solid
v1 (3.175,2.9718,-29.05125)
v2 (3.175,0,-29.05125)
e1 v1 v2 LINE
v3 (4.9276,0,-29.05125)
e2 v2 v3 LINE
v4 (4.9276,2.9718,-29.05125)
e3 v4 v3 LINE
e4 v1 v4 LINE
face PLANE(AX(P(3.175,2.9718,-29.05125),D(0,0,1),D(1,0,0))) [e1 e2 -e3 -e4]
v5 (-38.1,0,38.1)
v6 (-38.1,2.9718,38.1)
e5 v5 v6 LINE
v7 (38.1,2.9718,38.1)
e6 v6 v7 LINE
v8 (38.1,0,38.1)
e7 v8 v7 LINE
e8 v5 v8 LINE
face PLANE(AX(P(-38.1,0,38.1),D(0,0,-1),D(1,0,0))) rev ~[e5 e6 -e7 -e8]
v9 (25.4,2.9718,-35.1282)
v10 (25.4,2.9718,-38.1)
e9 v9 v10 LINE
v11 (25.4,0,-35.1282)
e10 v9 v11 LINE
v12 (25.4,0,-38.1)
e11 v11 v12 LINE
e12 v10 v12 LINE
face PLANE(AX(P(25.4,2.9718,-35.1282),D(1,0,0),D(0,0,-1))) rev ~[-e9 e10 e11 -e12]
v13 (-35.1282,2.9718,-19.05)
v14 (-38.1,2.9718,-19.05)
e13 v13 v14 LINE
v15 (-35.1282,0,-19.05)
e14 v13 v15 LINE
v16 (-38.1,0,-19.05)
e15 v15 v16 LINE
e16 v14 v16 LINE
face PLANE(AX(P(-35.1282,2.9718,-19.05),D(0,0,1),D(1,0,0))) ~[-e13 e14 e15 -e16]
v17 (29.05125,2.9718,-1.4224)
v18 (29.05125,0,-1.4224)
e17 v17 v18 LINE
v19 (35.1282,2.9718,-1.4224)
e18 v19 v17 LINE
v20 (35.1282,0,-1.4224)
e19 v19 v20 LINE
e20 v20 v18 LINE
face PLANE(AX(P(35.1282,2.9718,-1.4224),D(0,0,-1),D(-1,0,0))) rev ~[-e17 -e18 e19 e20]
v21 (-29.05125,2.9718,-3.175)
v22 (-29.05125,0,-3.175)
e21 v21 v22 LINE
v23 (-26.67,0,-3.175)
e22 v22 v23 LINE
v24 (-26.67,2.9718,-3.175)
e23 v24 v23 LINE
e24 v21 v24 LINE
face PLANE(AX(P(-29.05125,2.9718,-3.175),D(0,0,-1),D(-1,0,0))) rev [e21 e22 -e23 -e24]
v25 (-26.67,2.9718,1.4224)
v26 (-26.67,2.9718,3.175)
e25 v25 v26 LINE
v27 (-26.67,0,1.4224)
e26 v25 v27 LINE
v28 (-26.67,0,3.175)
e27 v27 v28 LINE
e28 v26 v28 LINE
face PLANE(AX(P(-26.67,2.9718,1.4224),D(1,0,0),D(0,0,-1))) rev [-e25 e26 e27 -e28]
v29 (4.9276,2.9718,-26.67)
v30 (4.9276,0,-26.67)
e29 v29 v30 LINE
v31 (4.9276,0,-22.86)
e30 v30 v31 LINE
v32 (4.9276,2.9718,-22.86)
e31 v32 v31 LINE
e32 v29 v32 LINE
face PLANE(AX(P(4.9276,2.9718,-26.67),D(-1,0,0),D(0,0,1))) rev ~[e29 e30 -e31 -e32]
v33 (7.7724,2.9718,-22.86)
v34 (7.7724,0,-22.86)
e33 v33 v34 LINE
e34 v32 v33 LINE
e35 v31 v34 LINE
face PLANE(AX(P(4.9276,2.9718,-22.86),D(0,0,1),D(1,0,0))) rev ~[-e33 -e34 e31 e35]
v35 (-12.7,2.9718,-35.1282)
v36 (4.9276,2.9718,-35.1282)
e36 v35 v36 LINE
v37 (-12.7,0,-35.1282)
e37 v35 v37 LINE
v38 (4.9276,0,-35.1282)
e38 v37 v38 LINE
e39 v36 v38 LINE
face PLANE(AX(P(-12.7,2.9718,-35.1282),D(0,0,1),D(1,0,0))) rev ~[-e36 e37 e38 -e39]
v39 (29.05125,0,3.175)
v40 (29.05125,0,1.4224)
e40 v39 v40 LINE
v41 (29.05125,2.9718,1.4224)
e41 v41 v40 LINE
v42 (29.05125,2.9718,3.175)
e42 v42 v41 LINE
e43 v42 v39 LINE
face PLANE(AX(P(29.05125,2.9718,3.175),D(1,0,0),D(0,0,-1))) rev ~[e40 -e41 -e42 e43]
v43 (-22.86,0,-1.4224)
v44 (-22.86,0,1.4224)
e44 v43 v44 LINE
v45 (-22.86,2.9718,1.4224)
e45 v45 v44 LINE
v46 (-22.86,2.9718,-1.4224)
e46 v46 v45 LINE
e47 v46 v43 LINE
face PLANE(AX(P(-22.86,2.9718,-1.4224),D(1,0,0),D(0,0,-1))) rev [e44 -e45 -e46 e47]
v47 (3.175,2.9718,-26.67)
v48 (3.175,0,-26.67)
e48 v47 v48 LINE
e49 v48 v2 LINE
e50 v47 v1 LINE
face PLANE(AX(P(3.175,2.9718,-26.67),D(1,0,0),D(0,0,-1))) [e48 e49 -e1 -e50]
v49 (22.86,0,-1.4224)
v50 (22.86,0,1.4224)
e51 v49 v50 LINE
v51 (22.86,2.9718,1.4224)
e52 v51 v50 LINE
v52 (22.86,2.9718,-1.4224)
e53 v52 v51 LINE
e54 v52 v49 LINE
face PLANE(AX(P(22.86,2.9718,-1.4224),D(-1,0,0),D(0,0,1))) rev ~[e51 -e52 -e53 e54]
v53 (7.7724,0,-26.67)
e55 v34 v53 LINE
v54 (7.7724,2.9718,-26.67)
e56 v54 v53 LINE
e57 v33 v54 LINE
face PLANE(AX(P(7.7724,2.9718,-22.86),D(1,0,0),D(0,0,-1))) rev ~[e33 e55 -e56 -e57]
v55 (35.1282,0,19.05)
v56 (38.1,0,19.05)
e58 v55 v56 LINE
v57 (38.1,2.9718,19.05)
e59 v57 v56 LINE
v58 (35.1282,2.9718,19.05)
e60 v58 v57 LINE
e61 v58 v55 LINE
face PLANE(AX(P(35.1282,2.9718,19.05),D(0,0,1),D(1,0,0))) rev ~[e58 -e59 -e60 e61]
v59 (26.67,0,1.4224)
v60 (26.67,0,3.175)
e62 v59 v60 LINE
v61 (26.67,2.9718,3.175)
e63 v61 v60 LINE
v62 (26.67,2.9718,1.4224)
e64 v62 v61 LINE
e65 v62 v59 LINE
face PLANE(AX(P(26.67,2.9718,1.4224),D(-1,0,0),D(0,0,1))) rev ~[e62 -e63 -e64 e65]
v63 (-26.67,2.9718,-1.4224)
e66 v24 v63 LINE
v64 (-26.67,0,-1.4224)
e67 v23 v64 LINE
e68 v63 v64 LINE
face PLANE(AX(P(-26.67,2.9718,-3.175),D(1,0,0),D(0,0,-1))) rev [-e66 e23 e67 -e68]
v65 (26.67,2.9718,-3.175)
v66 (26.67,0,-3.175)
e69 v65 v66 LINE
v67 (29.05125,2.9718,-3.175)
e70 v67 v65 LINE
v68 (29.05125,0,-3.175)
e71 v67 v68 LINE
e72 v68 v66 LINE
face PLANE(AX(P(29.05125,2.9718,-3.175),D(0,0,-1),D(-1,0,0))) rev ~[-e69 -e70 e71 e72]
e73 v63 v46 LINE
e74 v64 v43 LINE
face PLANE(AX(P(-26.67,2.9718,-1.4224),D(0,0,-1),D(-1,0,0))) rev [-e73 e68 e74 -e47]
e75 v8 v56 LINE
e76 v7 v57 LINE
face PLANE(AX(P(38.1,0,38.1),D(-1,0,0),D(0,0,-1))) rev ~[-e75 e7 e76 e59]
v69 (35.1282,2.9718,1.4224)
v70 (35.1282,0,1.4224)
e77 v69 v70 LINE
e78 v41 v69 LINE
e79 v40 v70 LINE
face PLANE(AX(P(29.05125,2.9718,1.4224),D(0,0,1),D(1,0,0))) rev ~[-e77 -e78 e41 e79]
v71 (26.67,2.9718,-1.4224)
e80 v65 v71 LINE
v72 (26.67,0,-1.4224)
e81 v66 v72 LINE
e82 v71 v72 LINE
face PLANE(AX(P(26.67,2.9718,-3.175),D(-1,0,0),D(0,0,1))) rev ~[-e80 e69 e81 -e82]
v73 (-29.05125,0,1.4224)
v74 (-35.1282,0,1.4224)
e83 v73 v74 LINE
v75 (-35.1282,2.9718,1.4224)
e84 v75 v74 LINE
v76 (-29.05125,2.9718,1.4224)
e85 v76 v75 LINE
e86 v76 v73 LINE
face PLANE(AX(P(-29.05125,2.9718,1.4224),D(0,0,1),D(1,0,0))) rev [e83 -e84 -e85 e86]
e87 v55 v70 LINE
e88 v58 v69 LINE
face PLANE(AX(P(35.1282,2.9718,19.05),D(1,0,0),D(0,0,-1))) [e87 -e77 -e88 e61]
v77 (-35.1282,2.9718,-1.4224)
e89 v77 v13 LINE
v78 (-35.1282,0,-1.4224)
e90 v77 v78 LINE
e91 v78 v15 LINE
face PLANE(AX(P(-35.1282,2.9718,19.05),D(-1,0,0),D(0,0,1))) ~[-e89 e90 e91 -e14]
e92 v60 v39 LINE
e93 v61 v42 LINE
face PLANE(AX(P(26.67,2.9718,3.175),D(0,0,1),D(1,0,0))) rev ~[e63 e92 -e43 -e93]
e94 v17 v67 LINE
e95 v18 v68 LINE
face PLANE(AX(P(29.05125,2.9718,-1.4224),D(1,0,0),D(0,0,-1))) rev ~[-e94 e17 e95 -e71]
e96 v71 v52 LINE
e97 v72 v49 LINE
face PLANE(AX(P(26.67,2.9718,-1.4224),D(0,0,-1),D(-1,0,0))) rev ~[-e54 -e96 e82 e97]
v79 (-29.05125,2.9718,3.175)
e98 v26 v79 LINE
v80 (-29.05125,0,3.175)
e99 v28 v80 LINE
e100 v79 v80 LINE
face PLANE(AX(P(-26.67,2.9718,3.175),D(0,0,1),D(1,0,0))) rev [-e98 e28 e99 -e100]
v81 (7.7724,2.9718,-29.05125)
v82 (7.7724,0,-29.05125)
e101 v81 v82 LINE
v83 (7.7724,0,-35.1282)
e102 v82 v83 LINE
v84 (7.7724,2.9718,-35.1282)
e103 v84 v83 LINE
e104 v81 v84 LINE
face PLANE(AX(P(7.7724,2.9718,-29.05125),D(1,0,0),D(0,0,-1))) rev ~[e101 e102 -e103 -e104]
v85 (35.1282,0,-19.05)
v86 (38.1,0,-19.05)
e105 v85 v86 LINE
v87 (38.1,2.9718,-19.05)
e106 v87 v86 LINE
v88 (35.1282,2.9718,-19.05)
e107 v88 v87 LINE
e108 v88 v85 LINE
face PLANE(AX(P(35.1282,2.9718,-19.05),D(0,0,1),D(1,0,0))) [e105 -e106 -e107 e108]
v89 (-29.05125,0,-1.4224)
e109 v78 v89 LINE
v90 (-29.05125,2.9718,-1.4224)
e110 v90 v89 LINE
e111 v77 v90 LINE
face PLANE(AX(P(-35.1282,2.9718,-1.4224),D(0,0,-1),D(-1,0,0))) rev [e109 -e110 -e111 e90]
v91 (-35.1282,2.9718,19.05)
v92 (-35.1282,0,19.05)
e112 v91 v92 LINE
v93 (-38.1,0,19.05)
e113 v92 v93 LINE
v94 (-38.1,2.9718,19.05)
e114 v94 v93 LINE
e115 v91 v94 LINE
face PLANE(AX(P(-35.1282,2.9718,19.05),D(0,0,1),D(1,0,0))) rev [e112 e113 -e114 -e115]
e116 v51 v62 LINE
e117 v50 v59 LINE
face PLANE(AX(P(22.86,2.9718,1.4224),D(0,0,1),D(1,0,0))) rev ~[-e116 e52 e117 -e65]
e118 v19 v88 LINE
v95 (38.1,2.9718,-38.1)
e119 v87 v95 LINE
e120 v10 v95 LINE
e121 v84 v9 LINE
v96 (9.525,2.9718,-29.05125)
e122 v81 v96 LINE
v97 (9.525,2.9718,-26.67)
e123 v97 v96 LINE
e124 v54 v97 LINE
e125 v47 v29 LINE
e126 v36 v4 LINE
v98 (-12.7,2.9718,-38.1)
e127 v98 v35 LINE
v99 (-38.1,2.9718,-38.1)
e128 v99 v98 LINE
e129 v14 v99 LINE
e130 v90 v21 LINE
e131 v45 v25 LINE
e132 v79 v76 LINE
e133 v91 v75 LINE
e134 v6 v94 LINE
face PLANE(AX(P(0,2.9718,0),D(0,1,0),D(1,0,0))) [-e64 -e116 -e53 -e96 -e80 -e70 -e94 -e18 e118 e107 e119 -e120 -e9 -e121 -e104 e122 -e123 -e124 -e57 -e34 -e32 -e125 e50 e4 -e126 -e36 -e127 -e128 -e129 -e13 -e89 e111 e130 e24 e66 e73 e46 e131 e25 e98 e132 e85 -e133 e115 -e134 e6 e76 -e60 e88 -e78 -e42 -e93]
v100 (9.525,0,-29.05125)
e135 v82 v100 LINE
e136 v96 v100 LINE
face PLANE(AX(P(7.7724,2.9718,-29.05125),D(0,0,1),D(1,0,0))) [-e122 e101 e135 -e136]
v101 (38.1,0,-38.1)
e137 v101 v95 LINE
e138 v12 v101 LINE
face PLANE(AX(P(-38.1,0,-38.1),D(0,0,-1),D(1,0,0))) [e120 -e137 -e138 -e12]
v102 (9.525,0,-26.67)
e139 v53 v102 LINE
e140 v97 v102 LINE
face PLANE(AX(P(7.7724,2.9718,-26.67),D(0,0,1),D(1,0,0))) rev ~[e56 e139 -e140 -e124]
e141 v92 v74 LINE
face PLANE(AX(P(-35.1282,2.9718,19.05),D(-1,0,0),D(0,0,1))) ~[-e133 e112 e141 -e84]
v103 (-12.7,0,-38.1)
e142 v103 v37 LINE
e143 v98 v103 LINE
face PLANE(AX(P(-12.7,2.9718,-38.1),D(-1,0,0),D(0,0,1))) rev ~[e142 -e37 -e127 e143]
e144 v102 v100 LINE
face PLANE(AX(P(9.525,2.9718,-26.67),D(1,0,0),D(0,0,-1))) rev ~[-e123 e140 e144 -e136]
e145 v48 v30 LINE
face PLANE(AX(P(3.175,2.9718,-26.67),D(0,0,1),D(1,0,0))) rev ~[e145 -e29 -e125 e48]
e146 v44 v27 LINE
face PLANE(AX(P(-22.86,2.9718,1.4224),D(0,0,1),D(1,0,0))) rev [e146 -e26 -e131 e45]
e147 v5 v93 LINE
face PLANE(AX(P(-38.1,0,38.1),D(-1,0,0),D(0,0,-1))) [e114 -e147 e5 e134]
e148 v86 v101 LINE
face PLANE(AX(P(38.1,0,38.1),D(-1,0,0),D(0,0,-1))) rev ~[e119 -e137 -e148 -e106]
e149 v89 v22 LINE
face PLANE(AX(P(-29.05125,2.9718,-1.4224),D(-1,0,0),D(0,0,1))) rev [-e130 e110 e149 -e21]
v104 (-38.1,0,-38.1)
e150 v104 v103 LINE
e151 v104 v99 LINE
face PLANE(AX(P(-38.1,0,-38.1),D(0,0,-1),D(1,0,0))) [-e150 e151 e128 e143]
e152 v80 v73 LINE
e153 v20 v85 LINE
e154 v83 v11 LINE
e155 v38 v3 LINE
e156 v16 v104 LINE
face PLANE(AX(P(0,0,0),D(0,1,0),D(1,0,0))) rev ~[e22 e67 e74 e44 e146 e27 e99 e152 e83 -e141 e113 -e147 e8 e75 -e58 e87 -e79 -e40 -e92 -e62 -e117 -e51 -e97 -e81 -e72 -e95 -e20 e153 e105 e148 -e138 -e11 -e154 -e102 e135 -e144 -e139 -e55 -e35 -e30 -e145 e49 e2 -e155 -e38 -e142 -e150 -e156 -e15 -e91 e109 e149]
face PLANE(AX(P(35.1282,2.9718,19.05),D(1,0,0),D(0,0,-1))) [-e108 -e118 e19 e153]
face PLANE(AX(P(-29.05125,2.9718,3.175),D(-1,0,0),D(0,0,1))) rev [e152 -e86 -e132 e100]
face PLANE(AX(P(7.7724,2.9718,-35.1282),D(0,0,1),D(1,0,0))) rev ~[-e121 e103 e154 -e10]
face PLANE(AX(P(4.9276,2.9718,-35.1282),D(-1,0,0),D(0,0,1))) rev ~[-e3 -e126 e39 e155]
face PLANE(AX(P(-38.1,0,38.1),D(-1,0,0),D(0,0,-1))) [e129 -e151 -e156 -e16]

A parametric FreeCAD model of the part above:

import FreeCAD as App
import Part
import Sketcher
from FreeCAD import Vector
Q = App.Units.Quantity

doc = App.newDocument("Part")
body = doc.addObject("PartDesign::Body", "Body")

sketch1 = body.newObject("Sketcher::SketchObject", "Sketch")
sketch1.AttachmentSupport = (doc.getObject("XZ_Plane"), [""])
sketch1.MapMode = "FlatFace"
sketch1.addGeometry(Part.LineSegment(Vector(-38, -38, 0), Vector(-38, 38, 0)), False)
sketch1.addGeometry(Part.LineSegment(Vector(-38, 38, 0), Vector(38, 38, 0)), False)
sketch1.addGeometry(Part.LineSegment(Vector(38, 38, 0), Vector(38, -38, 0)), False)
sketch1.addGeometry(Part.LineSegment(Vector(38, -38, 0), Vector(-38, -38, 0)), False)
sketch1.addConstraint(Sketcher.Constraint("Coincident", 0, 2, 1, 1))
sketch1.addConstraint(Sketcher.Constraint("Coincident", 1, 2, 2, 1))
sketch1.addConstraint(Sketcher.Constraint("Coincident", 2, 2, 3, 1))
sketch1.addConstraint(Sketcher.Constraint("Coincident", 3, 2, 0, 1))
sketch1.addConstraint(Sketcher.Constraint("Vertical", 0))
sketch1.addConstraint(Sketcher.Constraint("Horizontal", 1))
sketch1.addConstraint(Sketcher.Constraint("Vertical", 2))
sketch1.addConstraint(Sketcher.Constraint("Horizontal", 3))
sketch1.addConstraint(Sketcher.Constraint("Symmetric", 0, 2, 2, 2, -1, 1))
sketch1.addConstraint(Sketcher.Constraint("Equal", 3, 0))
sketch1.addConstraint(Sketcher.Constraint("DistanceX", 1, 1, 1, 2, Q("3 in")))
pad1 = body.newObject("PartDesign::Pad", "Pad")
pad1.Profile = sketch1
pad1.Length = Q("0.117 in")
pad1.Reversed = True

sketch2 = body.newObject("Sketcher::SketchObject", "Sketch001")
sketch2.AttachmentSupport = (doc.getObject("XZ_Plane"), [""])
sketch2.MapMode = "FlatFace"
sketch2.AttachmentOffset = App.Placement(Vector(0, 0, -0.117 * 25.4), App.Rotation())
sketch2.addGeometry(Part.LineSegment(Vector(35.1, -19.1, 0), Vector(35.1, 19.1, 0)), False)
sketch2.addGeometry(Part.LineSegment(Vector(35.1, 19.1, 0), Vector(38.1, 19.1, 0)), False)
sketch2.addGeometry(Part.LineSegment(Vector(38.1, 19.1, 0), Vector(38.1, -19.1, 0)), False)
sketch2.addGeometry(Part.LineSegment(Vector(38.1, -19.1, 0), Vector(35.1, -19.1, 0)), False)
sketch2.addConstraint(Sketcher.Constraint("Coincident", 0, 2, 1, 1))
sketch2.addConstraint(Sketcher.Constraint("Coincident", 1, 2, 2, 1))
sketch2.addConstraint(Sketcher.Constraint("Coincident", 2, 2, 3, 1))
sketch2.addConstraint(Sketcher.Constraint("Coincident", 3, 2, 0, 1))
sketch2.addConstraint(Sketcher.Constraint("Vertical", 0))
sketch2.addConstraint(Sketcher.Constraint("Horizontal", 1))
sketch2.addConstraint(Sketcher.Constraint("Vertical", 2))
sketch2.addConstraint(Sketcher.Constraint("Horizontal", 3))
sketch2.addConstraint(Sketcher.Constraint("DistanceY", 0, 1, 0, 2, Q("1.5 in")))
sketch2.addConstraint(Sketcher.Constraint("DistanceX", -1, 1, 1, 2, Q("1.5 in")))
sketch2.addConstraint(Sketcher.Constraint("DistanceX", 1, 1, 1, 2, Q("0.117 in")))
sketch2.addConstraint(Sketcher.Constraint("DistanceY", -1, 1, 0, 2, Q("0.75 in")))
pocket1 = body.newObject("PartDesign::Pocket", "Pocket")
pocket1.Profile = sketch2
pocket1.Type = "ThroughAll"
pocket1.Reversed = True

sketch3 = body.newObject("Sketcher::SketchObject", "Sketch002")
sketch3.AttachmentSupport = (doc.getObject("XZ_Plane"), [""])
sketch3.MapMode = "FlatFace"
sketch3.AttachmentOffset = App.Placement(Vector(0, 0, -0.117 * 25.4), App.Rotation())
sketch3.addGeometry(Part.LineSegment(Vector(35.1, -1.4, 0), Vector(29.1, -1.4, 0)), False)
sketch3.addGeometry(Part.LineSegment(Vector(29.1, -1.4, 0), Vector(29.1, -3.2, 0)), False)
sketch3.addGeometry(Part.LineSegment(Vector(29.1, -3.2, 0), Vector(26.7, -3.2, 0)), False)
sketch3.addGeometry(Part.LineSegment(Vector(26.7, -3.2, 0), Vector(26.7, -1.4, 0)), False)
sketch3.addGeometry(Part.LineSegment(Vector(26.7, -1.4, 0), Vector(22.9, -1.4, 0)), False)
sketch3.addGeometry(Part.LineSegment(Vector(22.9, -1.4, 0), Vector(22.9, 1.4, 0)), False)
sketch3.addGeometry(Part.LineSegment(Vector(22.9, 1.4, 0), Vector(26.7, 1.4, 0)), False)
sketch3.addGeometry(Part.LineSegment(Vector(26.7, 1.4, 0), Vector(26.7, 3.2, 0)), False)
sketch3.addGeometry(Part.LineSegment(Vector(26.7, 3.2, 0), Vector(29.1, 3.2, 0)), False)
sketch3.addGeometry(Part.LineSegment(Vector(29.1, 3.2, 0), Vector(29.1, 1.4, 0)), False)
sketch3.addGeometry(Part.LineSegment(Vector(29.1, 1.4, 0), Vector(35.1, 1.4, 0)), False)
sketch3.addGeometry(Part.LineSegment(Vector(35.1, 1.4, 0), Vector(35.1, -1.4, 0)), False)
sketch3.addConstraint(Sketcher.Constraint("Coincident", 0, 2, 1, 1))
sketch3.addConstraint(Sketcher.Constraint("Coincident", 1, 2, 2, 1))
sketch3.addConstraint(Sketcher.Constraint("Coincident", 2, 2, 3, 1))
sketch3.addConstraint(Sketcher.Constraint("Coincident", 3, 2, 4, 1))
sketch3.addConstraint(Sketcher.Constraint("Coincident", 4, 2, 5, 1))
sketch3.addConstraint(Sketcher.Constraint("Coincident", 5, 2, 6, 1))
sketch3.addConstraint(Sketcher.Constraint("Coincident", 6, 2, 7, 1))
sketch3.addConstraint(Sketcher.Constraint("Coincident", 7, 2, 8, 1))
sketch3.addConstraint(Sketcher.Constraint("Coincident", 8, 2, 9, 1))
sketch3.addConstraint(Sketcher.Constraint("Coincident", 9, 2, 10, 1))
sketch3.addConstraint(Sketcher.Constraint("Coincident", 10, 2, 11, 1))
sketch3.addConstraint(Sketcher.Constraint("Coincident", 11, 2, 0, 1))
sketch3.addConstraint(Sketcher.Constraint("Horizontal", 0))
sketch3.addConstraint(Sketcher.Constraint("Vertical", 1))
sketch3.addConstraint(Sketcher.Constraint("Horizontal", 2))
sketch3.addConstraint(Sketcher.Constraint("Vertical", 3))
sketch3.addConstraint(Sketcher.Constraint("Horizontal", 4))
sketch3.addConstraint(Sketcher.Constraint("Vertical", 5))
sketch3.addConstraint(Sketcher.Constraint("Horizontal", 6))
sketch3.addConstraint(Sketcher.Constraint("Vertical", 7))
sketch3.addConstraint(Sketcher.Constraint("Horizontal", 8))
sketch3.addConstraint(Sketcher.Constraint("Vertical", 9))
sketch3.addConstraint(Sketcher.Constraint("Horizontal", 10))
sketch3.addConstraint(Sketcher.Constraint("Vertical", 11))
sketch3.addConstraint(Sketcher.Constraint("Symmetric", 3, 2, 6, 2, -1))
sketch3.addConstraint(Sketcher.Constraint("Symmetric", 1, 2, 8, 2, -1))
sketch3.addConstraint(Sketcher.Constraint("Horizontal", 0, 2, 3, 2))
sketch3.addConstraint(Sketcher.Constraint("Horizontal", 6, 2, 9, 2))
sketch3.addConstraint(Sketcher.Constraint("DistanceX", 4, 2, 4, 1, Q("0.15 in")))
sketch3.addConstraint(Sketcher.Constraint("DistanceX", -1, 1, 4, 2, Q("0.9 in")))
sketch3.addConstraint(Sketcher.Constraint("DistanceX", 2, 2, 2, 1, Q("0.09375 in")))
sketch3.addConstraint(Sketcher.Constraint("DistanceY", 1, 2, 1, 1, Q("0.069 in")))
sketch3.addConstraint(Sketcher.Constraint("DistanceY", 5, 1, 5, 2, Q("0.112 in")))
sketch3.addConstraint(Sketcher.Constraint("DistanceX", -1, 1, 10, 2, Q("1.383 in")))
pocket2 = body.newObject("PartDesign::Pocket", "Pocket001")
pocket2.Profile = sketch3
pocket2.Type = "ThroughAll"
pocket2.Reversed = True

sketch4 = body.newObject("Sketcher::SketchObject", "Sketch003")
sketch4.AttachmentSupport = (doc.getObject("XZ_Plane"), [""])
sketch4.MapMode = "FlatFace"
sketch4.AttachmentOffset = App.Placement(Vector(0, 0, -0.117 * 25.4), App.Rotation())
sketch4.addGeometry(Part.LineSegment(Vector(25.4, -38.1, 0), Vector(-12.7, -38.1, 0)), False)
sketch4.addGeometry(Part.LineSegment(Vector(-12.7, -38.1, 0), Vector(-12.7, -35.1, 0)), False)
sketch4.addGeometry(Part.LineSegment(Vector(-12.7, -35.1, 0), Vector(4.9, -35.1, 0)), False)
sketch4.addGeometry(Part.LineSegment(Vector(4.9, -35.1, 0), Vector(4.9, -29.1, 0)), False)
sketch4.addGeometry(Part.LineSegment(Vector(4.9, -29.1, 0), Vector(3.2, -29.1, 0)), False)
sketch4.addGeometry(Part.LineSegment(Vector(3.2, -29.1, 0), Vector(3.2, -26.7, 0)), False)
sketch4.addGeometry(Part.LineSegment(Vector(3.2, -26.7, 0), Vector(4.9, -26.7, 0)), False)
sketch4.addGeometry(Part.LineSegment(Vector(4.9, -26.7, 0), Vector(4.9, -22.9, 0)), False)
sketch4.addGeometry(Part.LineSegment(Vector(4.9, -22.9, 0), Vector(7.8, -22.9, 0)), False)
sketch4.addGeometry(Part.LineSegment(Vector(7.8, -22.9, 0), Vector(7.8, -26.7, 0)), False)
sketch4.addGeometry(Part.LineSegment(Vector(7.8, -26.7, 0), Vector(9.5, -26.7, 0)), False)
sketch4.addGeometry(Part.LineSegment(Vector(9.5, -26.7, 0), Vector(9.5, -29.1, 0)), False)
sketch4.addGeometry(Part.LineSegment(Vector(9.5, -29.1, 0), Vector(7.8, -29.1, 0)), False)
sketch4.addGeometry(Part.LineSegment(Vector(7.8, -29.1, 0), Vector(7.8, -35.1, 0)), False)
sketch4.addGeometry(Part.LineSegment(Vector(7.8, -35.1, 0), Vector(25.4, -35.1, 0)), False)
sketch4.addGeometry(Part.LineSegment(Vector(25.4, -35.1, 0), Vector(25.4, -38.1, 0)), False)
sketch4.addConstraint(Sketcher.Constraint("Coincident", 0, 2, 1, 1))
sketch4.addConstraint(Sketcher.Constraint("Coincident", 1, 2, 2, 1))
sketch4.addConstraint(Sketcher.Constraint("Coincident", 2, 2, 3, 1))
sketch4.addConstraint(Sketcher.Constraint("Coincident", 3, 2, 4, 1))
sketch4.addConstraint(Sketcher.Constraint("Coincident", 4, 2, 5, 1))
sketch4.addConstraint(Sketcher.Constraint("Coincident", 5, 2, 6, 1))
sketch4.addConstraint(Sketcher.Constraint("Coincident", 6, 2, 7, 1))
sketch4.addConstraint(Sketcher.Constraint("Coincident", 7, 2, 8, 1))
sketch4.addConstraint(Sketcher.Constraint("Coincident", 8, 2, 9, 1))
sketch4.addConstraint(Sketcher.Constraint("Coincident", 9, 2, 10, 1))
sketch4.addConstraint(Sketcher.Constraint("Coincident", 10, 2, 11, 1))
sketch4.addConstraint(Sketcher.Constraint("Coincident", 11, 2, 12, 1))
sketch4.addConstraint(Sketcher.Constraint("Coincident", 12, 2, 13, 1))
sketch4.addConstraint(Sketcher.Constraint("Coincident", 13, 2, 14, 1))
sketch4.addConstraint(Sketcher.Constraint("Coincident", 14, 2, 15, 1))
sketch4.addConstraint(Sketcher.Constraint("Coincident", 15, 2, 0, 1))
sketch4.addConstraint(Sketcher.Constraint("Horizontal", 0))
sketch4.addConstraint(Sketcher.Constraint("Vertical", 1))
sketch4.addConstraint(Sketcher.Constraint("Horizontal", 2))
sketch4.addConstraint(Sketcher.Constraint("Vertical", 3))
sketch4.addConstraint(Sketcher.Constraint("Horizontal", 4))
sketch4.addConstraint(Sketcher.Constraint("Vertical", 5))
sketch4.addConstraint(Sketcher.Constraint("Horizontal", 6))
sketch4.addConstraint(Sketcher.Constraint("Vertical", 7))
sketch4.addConstraint(Sketcher.Constraint("Horizontal", 8))
sketch4.addConstraint(Sketcher.Constraint("Vertical", 9))
sketch4.addConstraint(Sketcher.Constraint("Horizontal", 10))
sketch4.addConstraint(Sketcher.Constraint("Vertical", 11))
sketch4.addConstraint(Sketcher.Constraint("Horizontal", 12))
sketch4.addConstraint(Sketcher.Constraint("Vertical", 13))
sketch4.addConstraint(Sketcher.Constraint("Horizontal", 14))
sketch4.addConstraint(Sketcher.Constraint("Vertical", 15))
sketch4.addConstraint(Sketcher.Constraint("Horizontal", 6, 2, 9, 2))
sketch4.addConstraint(Sketcher.Constraint("Horizontal", 4, 2, 11, 2))
sketch4.addConstraint(Sketcher.Constraint("Horizontal", 2, 2, 13, 2))
sketch4.addConstraint(Sketcher.Constraint("Vertical", 3, 2, 6, 2))
sketch4.addConstraint(Sketcher.Constraint("Vertical", 9, 2, 12, 2))
sketch4.addConstraint(Sketcher.Constraint("Equal", 6, 10))
sketch4.addConstraint(Sketcher.Constraint("Equal", 2, 14))
sketch4.addConstraint(Sketcher.Constraint("DistanceX", 0, 2, 0, 1, Q("1.5 in")))
sketch4.addConstraint(Sketcher.Constraint("DistanceX", -1, 1, 14, 2, Q("1 in")))
sketch4.addConstraint(Sketcher.Constraint("DistanceY", 7, 1, 7, 2, Q("0.15 in")))
sketch4.addConstraint(Sketcher.Constraint("DistanceY", 0, 2, -1, 1, Q("1.5 in")))
sketch4.addConstraint(Sketcher.Constraint("DistanceY", 7, 2, -1, 1, Q("0.9 in")))
sketch4.addConstraint(Sketcher.Constraint("DistanceX", 2, 1, 2, 2, Q("0.694 in")))
sketch4.addConstraint(Sketcher.Constraint("DistanceX", 4, 2, 4, 1, Q("0.069 in")))
sketch4.addConstraint(Sketcher.Constraint("DistanceY", 1, 1, 1, 2, Q("0.117 in")))
sketch4.addConstraint(Sketcher.Constraint("DistanceY", 5, 1, 5, 2, Q("0.09375 in")))
pocket3 = body.newObject("PartDesign::Pocket", "Pocket002")
pocket3.Profile = sketch4
pocket3.Type = "ThroughAll"
pocket3.Reversed = True
doc.recompute()

mirrored = body.newObject("PartDesign::Mirrored", "Mirrored")
mirrored.Originals = [pocket1, pocket2]
mirrored.MirrorPlane = (doc.getObject("YZ_Plane"), [""])
body.Tip = mirrored

doc.recompute()
